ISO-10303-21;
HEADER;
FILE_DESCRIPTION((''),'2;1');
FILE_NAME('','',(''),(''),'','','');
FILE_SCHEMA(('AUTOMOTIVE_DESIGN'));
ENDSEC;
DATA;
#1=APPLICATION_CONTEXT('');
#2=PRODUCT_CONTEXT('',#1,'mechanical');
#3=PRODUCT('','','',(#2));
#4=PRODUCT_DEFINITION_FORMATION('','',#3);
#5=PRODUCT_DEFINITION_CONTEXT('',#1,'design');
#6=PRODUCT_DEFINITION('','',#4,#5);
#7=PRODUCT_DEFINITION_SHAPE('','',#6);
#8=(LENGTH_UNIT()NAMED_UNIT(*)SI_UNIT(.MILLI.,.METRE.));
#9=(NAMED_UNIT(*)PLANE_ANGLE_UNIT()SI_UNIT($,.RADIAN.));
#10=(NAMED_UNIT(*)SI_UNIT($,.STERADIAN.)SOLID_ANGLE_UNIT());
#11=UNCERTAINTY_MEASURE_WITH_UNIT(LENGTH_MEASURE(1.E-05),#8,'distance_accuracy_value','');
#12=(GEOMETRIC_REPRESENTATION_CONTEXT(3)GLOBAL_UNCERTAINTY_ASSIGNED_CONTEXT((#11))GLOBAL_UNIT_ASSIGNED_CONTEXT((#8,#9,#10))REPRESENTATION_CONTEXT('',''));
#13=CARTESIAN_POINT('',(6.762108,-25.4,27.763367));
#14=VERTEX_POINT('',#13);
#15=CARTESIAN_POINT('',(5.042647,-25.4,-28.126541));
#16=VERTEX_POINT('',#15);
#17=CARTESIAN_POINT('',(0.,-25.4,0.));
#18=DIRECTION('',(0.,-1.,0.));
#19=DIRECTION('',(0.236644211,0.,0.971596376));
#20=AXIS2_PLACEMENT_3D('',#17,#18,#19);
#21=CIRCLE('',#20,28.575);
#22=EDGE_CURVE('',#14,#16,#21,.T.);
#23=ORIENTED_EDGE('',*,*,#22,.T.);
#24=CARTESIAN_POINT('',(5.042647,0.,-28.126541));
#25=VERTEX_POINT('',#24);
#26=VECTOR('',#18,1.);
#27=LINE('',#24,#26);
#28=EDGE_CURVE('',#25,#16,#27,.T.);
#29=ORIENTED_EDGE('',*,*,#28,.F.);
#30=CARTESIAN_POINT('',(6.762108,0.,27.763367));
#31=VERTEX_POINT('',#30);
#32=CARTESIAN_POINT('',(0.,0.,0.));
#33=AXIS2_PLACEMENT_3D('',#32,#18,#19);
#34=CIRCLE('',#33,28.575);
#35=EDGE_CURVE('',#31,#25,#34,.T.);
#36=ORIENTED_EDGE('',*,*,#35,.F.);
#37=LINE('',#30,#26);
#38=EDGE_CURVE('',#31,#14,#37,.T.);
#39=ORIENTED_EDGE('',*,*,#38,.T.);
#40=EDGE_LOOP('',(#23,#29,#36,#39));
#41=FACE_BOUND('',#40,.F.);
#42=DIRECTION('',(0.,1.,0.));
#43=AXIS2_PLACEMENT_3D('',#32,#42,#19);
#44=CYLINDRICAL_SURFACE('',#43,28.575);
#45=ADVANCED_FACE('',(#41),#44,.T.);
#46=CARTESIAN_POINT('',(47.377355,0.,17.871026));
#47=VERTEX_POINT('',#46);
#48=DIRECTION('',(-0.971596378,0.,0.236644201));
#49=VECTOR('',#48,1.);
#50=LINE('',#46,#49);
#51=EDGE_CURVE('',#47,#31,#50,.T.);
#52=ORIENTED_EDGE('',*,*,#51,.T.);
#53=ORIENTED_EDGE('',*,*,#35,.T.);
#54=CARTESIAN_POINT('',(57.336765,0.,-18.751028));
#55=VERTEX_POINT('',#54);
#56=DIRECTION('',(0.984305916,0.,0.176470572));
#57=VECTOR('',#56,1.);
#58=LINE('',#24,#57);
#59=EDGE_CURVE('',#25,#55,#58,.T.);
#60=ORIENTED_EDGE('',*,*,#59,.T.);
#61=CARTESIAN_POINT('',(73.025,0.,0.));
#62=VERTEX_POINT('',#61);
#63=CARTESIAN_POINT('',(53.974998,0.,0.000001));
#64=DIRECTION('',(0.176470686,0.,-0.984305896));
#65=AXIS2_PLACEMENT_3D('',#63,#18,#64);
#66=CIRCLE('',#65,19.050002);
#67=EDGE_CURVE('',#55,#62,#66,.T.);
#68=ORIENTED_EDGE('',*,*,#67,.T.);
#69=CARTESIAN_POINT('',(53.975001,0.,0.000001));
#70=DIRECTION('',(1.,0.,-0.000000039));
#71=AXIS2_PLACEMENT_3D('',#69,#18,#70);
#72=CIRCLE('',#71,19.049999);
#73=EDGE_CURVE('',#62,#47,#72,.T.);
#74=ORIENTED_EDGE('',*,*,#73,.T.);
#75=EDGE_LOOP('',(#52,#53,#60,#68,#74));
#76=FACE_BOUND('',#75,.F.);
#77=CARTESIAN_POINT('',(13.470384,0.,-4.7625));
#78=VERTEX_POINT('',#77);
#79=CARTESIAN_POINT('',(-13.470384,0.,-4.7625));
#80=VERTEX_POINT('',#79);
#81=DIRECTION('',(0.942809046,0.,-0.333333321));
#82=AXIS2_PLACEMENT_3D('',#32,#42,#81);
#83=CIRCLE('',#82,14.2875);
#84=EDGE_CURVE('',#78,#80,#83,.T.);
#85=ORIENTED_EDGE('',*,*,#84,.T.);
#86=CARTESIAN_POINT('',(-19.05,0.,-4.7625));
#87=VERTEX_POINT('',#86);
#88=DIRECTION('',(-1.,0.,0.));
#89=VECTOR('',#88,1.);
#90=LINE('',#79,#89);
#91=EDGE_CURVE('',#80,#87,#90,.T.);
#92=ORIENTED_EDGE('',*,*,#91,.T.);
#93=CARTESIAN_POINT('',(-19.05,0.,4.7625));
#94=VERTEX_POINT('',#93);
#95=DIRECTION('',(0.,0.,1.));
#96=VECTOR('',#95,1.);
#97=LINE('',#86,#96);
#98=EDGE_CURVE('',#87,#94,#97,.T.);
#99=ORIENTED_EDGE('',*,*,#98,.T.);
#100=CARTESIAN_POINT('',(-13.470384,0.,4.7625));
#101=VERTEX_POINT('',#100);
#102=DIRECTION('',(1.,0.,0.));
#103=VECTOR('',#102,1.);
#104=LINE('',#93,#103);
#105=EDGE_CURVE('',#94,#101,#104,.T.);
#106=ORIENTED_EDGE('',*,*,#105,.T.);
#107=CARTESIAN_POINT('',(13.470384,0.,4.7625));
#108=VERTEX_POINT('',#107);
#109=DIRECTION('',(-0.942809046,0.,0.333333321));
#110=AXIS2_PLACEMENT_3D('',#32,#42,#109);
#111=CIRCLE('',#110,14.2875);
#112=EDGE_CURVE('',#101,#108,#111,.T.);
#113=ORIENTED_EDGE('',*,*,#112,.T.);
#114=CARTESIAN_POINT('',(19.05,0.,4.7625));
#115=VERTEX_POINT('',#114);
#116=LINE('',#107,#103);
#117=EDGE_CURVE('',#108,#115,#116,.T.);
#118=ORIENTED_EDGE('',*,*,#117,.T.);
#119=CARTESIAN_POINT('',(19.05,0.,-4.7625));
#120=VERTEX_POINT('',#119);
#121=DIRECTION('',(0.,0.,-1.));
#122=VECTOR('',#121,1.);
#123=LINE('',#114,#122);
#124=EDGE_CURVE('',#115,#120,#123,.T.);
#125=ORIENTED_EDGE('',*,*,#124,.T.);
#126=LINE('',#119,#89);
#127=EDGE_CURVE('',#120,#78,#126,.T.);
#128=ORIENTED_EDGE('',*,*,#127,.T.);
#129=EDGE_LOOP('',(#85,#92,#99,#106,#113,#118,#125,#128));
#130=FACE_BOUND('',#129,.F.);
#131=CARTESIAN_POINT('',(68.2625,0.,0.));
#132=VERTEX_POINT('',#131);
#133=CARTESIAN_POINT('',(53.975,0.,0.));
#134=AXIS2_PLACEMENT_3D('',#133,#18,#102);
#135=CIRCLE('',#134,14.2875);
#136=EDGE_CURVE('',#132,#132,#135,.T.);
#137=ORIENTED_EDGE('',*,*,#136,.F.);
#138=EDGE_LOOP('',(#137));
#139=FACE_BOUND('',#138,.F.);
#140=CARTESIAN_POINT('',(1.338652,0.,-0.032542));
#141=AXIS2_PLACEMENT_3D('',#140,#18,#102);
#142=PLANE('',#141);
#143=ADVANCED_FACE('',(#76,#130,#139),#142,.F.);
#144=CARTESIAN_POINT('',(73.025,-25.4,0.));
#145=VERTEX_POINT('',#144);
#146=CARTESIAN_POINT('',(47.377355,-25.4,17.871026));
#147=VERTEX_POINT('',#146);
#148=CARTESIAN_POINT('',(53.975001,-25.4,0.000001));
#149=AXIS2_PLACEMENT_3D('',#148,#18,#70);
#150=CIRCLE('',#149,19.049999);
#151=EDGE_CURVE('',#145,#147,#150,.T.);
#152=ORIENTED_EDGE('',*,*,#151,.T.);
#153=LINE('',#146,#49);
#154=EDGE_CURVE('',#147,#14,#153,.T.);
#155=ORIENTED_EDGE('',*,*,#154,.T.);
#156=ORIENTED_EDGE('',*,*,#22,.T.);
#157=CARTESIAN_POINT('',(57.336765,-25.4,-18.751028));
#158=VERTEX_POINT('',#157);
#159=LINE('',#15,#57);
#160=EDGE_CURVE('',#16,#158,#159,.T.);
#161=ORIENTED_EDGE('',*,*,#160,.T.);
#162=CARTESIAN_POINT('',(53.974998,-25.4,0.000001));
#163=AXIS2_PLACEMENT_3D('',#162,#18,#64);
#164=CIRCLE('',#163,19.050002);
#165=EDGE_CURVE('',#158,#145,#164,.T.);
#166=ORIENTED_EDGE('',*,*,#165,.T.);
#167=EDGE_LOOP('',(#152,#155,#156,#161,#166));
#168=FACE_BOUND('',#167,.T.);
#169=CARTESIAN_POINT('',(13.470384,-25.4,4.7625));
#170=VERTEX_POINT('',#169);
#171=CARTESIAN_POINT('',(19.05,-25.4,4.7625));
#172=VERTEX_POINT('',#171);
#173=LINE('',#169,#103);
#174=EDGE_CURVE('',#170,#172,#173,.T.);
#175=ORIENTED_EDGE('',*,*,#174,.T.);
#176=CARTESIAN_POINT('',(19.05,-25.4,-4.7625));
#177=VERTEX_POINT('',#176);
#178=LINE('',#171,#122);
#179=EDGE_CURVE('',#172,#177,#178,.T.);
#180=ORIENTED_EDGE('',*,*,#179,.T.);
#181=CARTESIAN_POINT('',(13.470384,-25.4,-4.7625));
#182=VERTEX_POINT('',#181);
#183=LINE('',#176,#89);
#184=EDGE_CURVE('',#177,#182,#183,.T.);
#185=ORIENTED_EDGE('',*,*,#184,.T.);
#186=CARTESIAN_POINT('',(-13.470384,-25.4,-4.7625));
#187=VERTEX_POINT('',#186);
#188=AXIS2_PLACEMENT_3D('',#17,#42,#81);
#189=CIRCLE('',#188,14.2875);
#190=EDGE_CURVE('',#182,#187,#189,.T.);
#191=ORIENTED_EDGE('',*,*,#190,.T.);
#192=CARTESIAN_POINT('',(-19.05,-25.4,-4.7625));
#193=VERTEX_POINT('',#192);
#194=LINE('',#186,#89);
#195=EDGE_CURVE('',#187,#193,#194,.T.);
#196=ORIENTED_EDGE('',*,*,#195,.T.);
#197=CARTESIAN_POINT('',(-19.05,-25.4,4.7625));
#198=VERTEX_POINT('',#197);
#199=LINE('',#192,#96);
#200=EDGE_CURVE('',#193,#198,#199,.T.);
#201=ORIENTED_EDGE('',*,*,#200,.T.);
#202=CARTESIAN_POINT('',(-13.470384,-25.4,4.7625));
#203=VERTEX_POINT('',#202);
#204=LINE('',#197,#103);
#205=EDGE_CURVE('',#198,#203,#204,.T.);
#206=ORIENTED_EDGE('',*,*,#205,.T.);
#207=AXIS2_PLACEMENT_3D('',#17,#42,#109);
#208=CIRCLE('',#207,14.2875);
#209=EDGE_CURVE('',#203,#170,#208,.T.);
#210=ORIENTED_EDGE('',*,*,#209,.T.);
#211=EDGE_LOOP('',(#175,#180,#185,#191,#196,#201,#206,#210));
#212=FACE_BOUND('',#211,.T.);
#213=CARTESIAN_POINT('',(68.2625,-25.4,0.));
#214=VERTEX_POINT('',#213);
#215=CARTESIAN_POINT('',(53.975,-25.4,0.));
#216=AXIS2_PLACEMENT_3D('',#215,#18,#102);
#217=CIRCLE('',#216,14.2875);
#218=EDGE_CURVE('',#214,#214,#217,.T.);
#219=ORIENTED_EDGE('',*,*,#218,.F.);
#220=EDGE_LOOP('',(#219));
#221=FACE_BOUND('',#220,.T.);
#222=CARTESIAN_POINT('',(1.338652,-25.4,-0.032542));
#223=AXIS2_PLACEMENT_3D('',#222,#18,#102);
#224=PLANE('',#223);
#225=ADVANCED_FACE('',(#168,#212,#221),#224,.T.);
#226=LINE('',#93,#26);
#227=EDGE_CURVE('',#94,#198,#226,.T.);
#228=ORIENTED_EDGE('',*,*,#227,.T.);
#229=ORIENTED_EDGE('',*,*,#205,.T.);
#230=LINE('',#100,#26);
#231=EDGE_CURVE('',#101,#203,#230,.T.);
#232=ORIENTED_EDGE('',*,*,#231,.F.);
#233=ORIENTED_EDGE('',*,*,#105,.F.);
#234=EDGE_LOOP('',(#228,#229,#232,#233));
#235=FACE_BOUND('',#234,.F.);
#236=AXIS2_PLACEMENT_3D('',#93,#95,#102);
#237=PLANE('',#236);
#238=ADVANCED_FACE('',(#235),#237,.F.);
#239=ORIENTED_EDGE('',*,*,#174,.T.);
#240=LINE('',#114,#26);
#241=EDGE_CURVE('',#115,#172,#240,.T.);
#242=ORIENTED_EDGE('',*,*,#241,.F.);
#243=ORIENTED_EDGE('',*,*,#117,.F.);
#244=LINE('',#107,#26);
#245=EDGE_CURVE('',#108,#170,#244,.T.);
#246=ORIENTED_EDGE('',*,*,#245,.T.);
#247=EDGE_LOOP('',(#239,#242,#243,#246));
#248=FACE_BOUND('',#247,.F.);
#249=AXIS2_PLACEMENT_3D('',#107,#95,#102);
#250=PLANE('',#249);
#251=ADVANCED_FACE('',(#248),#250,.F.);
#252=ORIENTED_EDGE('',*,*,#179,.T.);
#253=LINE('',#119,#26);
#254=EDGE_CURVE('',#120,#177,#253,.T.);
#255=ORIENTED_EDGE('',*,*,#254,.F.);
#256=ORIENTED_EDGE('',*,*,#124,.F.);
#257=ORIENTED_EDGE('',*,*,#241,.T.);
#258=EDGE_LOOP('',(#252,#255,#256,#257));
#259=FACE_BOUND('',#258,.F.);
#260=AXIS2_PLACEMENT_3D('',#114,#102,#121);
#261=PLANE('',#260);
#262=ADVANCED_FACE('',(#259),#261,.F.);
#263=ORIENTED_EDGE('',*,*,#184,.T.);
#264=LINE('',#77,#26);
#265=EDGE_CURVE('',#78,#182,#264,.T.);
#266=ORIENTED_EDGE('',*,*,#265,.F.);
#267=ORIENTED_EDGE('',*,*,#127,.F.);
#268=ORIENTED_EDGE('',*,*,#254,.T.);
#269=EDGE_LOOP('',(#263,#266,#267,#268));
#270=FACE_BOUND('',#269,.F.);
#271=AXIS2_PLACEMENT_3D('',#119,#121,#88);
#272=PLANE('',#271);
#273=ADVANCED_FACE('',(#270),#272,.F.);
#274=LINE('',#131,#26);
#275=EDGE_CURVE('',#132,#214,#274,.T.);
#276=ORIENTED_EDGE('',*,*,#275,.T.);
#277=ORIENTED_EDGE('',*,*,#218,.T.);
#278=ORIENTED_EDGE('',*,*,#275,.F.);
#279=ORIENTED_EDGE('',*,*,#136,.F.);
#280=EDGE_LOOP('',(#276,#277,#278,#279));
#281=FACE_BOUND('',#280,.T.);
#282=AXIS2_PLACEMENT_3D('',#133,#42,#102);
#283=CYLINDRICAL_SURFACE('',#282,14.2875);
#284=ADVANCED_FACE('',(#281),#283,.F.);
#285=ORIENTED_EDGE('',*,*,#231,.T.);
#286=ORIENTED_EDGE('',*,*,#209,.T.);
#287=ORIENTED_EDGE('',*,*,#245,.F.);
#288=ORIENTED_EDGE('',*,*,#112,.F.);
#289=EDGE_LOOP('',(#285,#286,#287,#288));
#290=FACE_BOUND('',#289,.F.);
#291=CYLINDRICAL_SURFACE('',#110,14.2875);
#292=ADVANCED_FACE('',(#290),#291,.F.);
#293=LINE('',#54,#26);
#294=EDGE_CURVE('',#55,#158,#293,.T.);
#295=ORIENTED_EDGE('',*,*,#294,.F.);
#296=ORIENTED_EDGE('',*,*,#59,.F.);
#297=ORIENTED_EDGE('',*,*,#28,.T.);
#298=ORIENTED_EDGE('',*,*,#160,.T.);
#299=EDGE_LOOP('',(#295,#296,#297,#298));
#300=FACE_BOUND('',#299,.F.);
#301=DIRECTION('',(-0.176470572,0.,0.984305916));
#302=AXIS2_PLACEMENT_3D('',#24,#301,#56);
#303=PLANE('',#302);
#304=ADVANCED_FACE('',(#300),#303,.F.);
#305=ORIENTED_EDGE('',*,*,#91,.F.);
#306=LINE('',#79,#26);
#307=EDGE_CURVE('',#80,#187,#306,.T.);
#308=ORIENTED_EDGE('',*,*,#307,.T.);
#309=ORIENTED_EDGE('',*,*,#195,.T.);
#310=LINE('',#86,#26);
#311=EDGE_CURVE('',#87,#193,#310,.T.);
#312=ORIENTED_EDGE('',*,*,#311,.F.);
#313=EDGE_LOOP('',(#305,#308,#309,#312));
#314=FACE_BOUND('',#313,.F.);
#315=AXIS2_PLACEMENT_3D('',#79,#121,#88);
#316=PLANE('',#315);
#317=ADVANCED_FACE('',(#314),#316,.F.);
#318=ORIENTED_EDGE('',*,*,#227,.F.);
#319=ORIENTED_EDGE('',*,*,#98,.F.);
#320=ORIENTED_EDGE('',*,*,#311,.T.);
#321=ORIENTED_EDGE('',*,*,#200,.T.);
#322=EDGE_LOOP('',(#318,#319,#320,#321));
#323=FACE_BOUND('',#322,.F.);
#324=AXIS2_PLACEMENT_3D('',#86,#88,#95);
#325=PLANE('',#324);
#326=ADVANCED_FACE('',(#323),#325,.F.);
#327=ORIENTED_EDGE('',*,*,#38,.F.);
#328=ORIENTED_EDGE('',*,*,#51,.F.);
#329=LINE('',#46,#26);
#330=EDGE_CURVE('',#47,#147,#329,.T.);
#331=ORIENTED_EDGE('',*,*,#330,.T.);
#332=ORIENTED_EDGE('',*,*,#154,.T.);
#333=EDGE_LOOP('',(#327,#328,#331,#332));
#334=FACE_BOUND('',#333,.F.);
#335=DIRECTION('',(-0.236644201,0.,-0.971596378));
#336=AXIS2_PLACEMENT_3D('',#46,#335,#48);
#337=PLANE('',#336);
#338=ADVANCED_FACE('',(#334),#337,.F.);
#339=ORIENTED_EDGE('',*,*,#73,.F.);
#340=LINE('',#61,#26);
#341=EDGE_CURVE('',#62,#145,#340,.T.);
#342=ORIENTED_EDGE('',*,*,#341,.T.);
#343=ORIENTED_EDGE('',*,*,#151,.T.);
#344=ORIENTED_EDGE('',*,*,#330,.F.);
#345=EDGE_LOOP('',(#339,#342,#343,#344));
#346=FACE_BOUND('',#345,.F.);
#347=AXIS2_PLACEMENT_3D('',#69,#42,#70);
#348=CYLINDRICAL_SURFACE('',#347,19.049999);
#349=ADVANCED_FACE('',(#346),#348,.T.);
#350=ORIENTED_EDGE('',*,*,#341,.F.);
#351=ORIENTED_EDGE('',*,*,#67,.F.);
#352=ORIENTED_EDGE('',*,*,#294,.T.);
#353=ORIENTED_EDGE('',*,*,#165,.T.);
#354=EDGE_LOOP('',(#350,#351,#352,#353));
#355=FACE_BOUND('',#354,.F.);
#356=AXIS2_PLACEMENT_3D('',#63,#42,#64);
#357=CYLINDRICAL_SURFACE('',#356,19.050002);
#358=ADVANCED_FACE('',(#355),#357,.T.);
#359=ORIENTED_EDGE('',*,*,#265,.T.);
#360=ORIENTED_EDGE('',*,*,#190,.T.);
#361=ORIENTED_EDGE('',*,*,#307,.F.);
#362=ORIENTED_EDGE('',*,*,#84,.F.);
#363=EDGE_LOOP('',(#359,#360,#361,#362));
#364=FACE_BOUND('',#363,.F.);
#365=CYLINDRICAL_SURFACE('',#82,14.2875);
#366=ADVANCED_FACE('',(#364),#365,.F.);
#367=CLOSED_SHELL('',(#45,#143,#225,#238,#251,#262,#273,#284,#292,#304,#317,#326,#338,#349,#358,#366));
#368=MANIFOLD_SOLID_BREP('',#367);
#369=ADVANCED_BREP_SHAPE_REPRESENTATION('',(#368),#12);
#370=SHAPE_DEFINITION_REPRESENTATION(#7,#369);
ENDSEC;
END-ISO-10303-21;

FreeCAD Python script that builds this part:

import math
import FreeCAD as App
import Part
import Sketcher
from FreeCAD import Vector
Q = App.Units.Quantity

doc = App.newDocument("Part")
params = doc.addObject("Spreadsheet::Sheet", "Params")
for row, (alias, value) in enumerate([
    ("sketch1_radius", "0.7500001 in"),
    ("sketch1_radius2", "0.75 in"),
    ("sketch1_diameter", "1.125 in"),
    ("sketch1_radius3", "1.125 in"),
    ("sketch1_height", "0.375 in"),
    ("pad1_length", "1 in"),
], start=1):
    params.set(f"A{row}", alias)
    params.set(f"B{row}", "=" + value)
    params.setAlias(f"B{row}", alias)

body = doc.addObject("PartDesign::Body", "Body")

# Sketch on XZ plane
sketch1 = body.newObject("Sketcher::SketchObject", "Sketch")
sketch1.AttachmentSupport = (doc.getObject("XZ_Plane"), [""])
sketch1.MapMode = "FlatFace"
sketch1.addGeometry([
    Part.ArcOfCircle(Part.Circle(Vector(0, 0, 0), Vector(0, 0, 1), 29), math.radians(76), math.radians(280)),  # 0
    Part.LineSegment(Vector(5, -28, 0), Vector(57, -19, 0)),  # 1
    Part.ArcOfCircle(Part.Circle(Vector(54, 0, 0), Vector(0, 0, 1), 19), math.radians(-80), math.radians(0)),  # 2
    Part.ArcOfCircle(Part.Circle(Vector(54, 0, 0), Vector(0, 0, 1), 19), math.radians(0), math.radians(110)),  # 3
    Part.LineSegment(Vector(47, 18, 0), Vector(7, 28, 0)),  # 4
    Part.LineSegment(Vector(-19, 5, 0), Vector(-13, 5, 0)),  # 5
    Part.ArcOfCircle(Part.Circle(Vector(0, 0, 0), Vector(0, 0, 1), 14), math.radians(19), math.radians(161)),  # 6
    Part.LineSegment(Vector(13, 5, 0), Vector(19, 5, 0)),  # 7
    Part.LineSegment(Vector(19, 5, 0), Vector(19, -5, 0)),  # 8
    Part.LineSegment(Vector(19, -5, 0), Vector(13, -5, 0)),  # 9
    Part.ArcOfCircle(Part.Circle(Vector(0, 0, 0), Vector(0, 0, 1), 14), math.radians(-161), math.radians(-19)),  # 10
    Part.LineSegment(Vector(-13, -5, 0), Vector(-19, -5, 0)),  # 11
    Part.LineSegment(Vector(-19, -5, 0), Vector(-19, 5, 0)),  # 12
    Part.Circle(Vector(54, 0, 0), Vector(0, 0, 1), 14),  # 13
], False)
sketch1.addConstraint([
    Sketcher.Constraint("Tangent", 0, 2, 1, 1),
    Sketcher.Constraint("Tangent", 1, 2, 2, 1),
    Sketcher.Constraint("Tangent", 2, 2, 3, 1),
    Sketcher.Constraint("Coincident", 3, 2, 4, 1),
    Sketcher.Constraint("Tangent", 4, 2, 0, 1),
    Sketcher.Constraint("Coincident", 5, 2, 6, 2),
    Sketcher.Constraint("Coincident", 6, 1, 7, 1),
    Sketcher.Constraint("Coincident", 7, 2, 8, 1),
    Sketcher.Constraint("Coincident", 8, 2, 9, 1),
    Sketcher.Constraint("Coincident", 9, 2, 10, 2),
    Sketcher.Constraint("Coincident", 10, 1, 11, 1),
    Sketcher.Constraint("Coincident", 11, 2, 12, 1),
    Sketcher.Constraint("Coincident", 12, 2, 5, 1),
    Sketcher.Constraint("Horizontal", 5),
    Sketcher.Constraint("Horizontal", 7),
    Sketcher.Constraint("Vertical", 8),
    Sketcher.Constraint("Horizontal", 9),
    Sketcher.Constraint("Horizontal", 11),
    Sketcher.Constraint("Vertical", 12),
    Sketcher.Constraint("Coincident", 0, 3, -1, 1),
    Sketcher.Constraint("Coincident", 6, 3, -1, 1),
    Sketcher.Constraint("Coincident", 10, 3, -1, 1),
    Sketcher.Constraint("Coincident", 13, 3, 2, 3),
    Sketcher.Constraint("Equal", 6, 10),
    Sketcher.Constraint("Equal", 10, 13),
    Sketcher.Constraint("Symmetric", 7, 2, 11, 2, -1, 1),
    Sketcher.Constraint("PointOnObject", 2, 3, -1),
    Sketcher.Constraint("PointOnObject", 2, 2, -1),
    Sketcher.Constraint("Horizontal", 5, 2, 6, 1),
    Sketcher.Constraint("Horizontal", 9, 2, 10, 1),
    Sketcher.Constraint("Radius", 2, Q("0.7500001 in")),
    Sketcher.Constraint("Radius", 3, Q("0.75 in")),
    Sketcher.Constraint("Diameter", 13, Q("1.125 in")),
    Sketcher.Constraint("Radius", 0, Q("1.125 in")),
    Sketcher.Constraint("DistanceY", 8, 2, 8, 1, Q("0.375 in")),
    Sketcher.Constraint("DistanceX", -1, 1, 7, 2, Q("0.75 in")),
    Sketcher.Constraint("DistanceX", -1, 1, 2, 3, Q("2.1249999 in")),
    Sketcher.Constraint("DistanceX", 3, 2, 1, 2, Q("9.95941 mm")),
])
sketch1.setExpression("Constraints[30]", "Params.sketch1_radius")
sketch1.setExpression("Constraints[31]", "Params.sketch1_radius2")
sketch1.setExpression("Constraints[32]", "Params.sketch1_diameter")
sketch1.setExpression("Constraints[33]", "Params.sketch1_radius3")
sketch1.setExpression("Constraints[34]", "Params.sketch1_height")
pad1 = body.newObject("PartDesign::Pad", "Pad")
pad1.Profile = sketch1
pad1.setExpression("Length", "Params.pad1_length")

doc.recompute()
